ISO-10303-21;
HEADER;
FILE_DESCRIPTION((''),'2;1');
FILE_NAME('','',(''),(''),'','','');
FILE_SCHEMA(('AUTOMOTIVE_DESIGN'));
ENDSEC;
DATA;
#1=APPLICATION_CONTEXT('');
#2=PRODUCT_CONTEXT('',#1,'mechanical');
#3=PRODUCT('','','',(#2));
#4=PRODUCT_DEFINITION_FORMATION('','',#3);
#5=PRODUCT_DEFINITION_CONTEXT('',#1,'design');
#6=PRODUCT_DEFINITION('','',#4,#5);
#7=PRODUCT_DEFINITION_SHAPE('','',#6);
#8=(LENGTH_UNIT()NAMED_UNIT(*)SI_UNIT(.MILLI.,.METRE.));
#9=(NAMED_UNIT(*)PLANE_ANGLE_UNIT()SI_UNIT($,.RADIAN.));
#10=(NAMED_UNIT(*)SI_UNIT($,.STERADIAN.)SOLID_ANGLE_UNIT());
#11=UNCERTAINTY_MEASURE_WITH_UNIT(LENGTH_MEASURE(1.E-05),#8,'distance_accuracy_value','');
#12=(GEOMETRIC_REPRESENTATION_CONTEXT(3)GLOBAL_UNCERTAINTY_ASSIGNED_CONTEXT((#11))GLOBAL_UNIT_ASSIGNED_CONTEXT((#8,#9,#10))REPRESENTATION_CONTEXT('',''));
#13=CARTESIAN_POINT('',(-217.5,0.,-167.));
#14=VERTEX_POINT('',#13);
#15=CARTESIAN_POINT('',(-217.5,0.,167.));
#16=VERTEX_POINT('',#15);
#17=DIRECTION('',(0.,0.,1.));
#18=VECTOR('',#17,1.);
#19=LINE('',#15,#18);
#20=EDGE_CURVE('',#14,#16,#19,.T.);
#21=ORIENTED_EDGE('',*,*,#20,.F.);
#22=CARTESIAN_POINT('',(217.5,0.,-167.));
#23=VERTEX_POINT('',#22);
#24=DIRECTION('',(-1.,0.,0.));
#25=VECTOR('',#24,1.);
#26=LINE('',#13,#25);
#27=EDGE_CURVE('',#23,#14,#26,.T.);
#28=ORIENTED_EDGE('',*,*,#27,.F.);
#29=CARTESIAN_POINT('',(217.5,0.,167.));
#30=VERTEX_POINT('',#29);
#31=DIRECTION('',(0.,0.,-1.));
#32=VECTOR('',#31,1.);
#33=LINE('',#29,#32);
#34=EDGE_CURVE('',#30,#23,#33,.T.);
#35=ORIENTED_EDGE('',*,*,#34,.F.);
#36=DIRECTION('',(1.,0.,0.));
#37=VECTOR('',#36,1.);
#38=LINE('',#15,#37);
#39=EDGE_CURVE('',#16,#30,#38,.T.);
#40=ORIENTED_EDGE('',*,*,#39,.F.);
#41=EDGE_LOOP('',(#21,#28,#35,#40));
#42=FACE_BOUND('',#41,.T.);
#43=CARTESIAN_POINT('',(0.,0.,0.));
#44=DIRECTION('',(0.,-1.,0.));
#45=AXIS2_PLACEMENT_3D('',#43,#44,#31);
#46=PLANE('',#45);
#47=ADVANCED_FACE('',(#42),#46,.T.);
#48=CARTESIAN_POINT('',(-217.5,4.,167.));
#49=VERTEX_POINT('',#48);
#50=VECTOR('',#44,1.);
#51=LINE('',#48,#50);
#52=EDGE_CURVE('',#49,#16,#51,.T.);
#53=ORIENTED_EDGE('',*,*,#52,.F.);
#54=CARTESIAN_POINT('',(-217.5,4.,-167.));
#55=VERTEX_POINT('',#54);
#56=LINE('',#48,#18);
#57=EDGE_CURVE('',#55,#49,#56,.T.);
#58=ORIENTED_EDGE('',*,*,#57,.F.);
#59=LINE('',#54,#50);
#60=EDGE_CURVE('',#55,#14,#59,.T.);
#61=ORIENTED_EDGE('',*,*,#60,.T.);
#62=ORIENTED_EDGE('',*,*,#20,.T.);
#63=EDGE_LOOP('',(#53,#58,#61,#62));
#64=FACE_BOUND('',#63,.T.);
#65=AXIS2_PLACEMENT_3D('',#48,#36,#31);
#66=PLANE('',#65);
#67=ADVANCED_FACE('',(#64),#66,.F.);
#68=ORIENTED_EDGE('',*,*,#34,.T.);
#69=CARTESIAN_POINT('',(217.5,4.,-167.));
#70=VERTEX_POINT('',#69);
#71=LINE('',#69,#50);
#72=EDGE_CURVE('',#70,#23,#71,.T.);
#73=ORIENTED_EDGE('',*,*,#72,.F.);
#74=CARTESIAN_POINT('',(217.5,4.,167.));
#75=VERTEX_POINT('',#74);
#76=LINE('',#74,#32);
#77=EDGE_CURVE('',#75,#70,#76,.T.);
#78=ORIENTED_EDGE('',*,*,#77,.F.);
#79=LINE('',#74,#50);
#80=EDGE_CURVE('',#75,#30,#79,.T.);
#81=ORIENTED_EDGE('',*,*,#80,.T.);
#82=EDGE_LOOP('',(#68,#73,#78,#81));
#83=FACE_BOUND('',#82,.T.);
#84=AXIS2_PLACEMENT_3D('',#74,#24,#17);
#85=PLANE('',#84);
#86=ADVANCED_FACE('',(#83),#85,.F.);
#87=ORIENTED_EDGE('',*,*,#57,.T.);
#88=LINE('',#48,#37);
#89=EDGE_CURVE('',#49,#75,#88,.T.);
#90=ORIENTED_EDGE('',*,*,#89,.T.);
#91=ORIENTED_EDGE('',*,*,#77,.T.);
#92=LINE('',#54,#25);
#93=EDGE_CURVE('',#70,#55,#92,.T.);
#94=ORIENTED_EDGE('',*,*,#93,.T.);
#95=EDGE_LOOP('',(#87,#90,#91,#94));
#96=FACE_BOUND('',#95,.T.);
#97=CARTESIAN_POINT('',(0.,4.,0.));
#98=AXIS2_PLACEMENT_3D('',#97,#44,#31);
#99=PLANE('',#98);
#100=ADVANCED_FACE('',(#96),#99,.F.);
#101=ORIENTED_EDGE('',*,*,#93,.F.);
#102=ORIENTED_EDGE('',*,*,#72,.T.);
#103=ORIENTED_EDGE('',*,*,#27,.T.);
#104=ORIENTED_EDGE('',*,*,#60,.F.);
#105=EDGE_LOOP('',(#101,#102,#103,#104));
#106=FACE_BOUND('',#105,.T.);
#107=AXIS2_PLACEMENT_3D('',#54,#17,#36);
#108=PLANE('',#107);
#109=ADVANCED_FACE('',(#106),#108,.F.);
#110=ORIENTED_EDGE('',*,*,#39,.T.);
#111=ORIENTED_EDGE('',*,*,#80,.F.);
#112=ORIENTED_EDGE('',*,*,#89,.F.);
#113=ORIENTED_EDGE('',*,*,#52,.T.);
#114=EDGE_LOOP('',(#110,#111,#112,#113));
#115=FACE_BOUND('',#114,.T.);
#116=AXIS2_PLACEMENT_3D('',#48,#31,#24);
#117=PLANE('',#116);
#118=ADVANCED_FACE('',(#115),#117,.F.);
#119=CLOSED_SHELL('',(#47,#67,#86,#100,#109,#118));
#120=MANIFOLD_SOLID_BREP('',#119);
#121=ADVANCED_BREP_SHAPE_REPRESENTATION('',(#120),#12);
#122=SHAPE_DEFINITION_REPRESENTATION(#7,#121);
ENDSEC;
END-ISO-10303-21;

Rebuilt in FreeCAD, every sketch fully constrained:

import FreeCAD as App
import Part
import Sketcher

doc = App.newDocument("Part")
params = doc.addObject("Spreadsheet::Sheet", "Params")
for row, (alias, value) in enumerate([
    ("sketch1_width", "435 mm"),
    ("sketch1_height", "334 mm"),
    ("pad1_length", "4 mm"),
], start=1):
    params.set(f"A{row}", alias)
    params.set(f"B{row}", "=" + value)
    params.setAlias(f"B{row}", alias)

body = doc.addObject("PartDesign::Body", "Body")

sketch1 = body.newObject("Sketcher::SketchObject", "Sketch")
sketch1.AttachmentSupport = (doc.getObject("XZ_Plane"), [""])
sketch1.MapMode = "FlatFace"
sketch1.addGeometry([
    Part.LineSegment(App.Vector(-218, -167, 0), App.Vector(-218, 167, 0)),
    Part.LineSegment(App.Vector(-218, 167, 0), App.Vector(218, 167, 0)),
    Part.LineSegment(App.Vector(218, 167, 0), App.Vector(218, -167, 0)),
    Part.LineSegment(App.Vector(218, -167, 0), App.Vector(-218, -167, 0)),
], False)
sketch1.addConstraint([
    Sketcher.Constraint("Coincident", 0, 2, 1, 1),
    Sketcher.Constraint("Coincident", 1, 2, 2, 1),
    Sketcher.Constraint("Coincident", 2, 2, 3, 1),
    Sketcher.Constraint("Coincident", 3, 2, 0, 1),
    Sketcher.Constraint("Vertical", 0),
    Sketcher.Constraint("Horizontal", 1),
    Sketcher.Constraint("Vertical", 2),
    Sketcher.Constraint("Horizontal", 3),
    Sketcher.Constraint("Symmetric", 0, 2, 2, 2, -1, 1),
    Sketcher.Constraint("DistanceX", 1, 1, 1, 2, 435.0),
    Sketcher.Constraint("DistanceY", 0, 1, 0, 2, 334.0),
])
sketch1.setExpression("Constraints[9]", "Params.sketch1_width")
sketch1.setExpression("Constraints[10]", "Params.sketch1_height")
pad1 = body.newObject("PartDesign::Pad", "Pad")
pad1.Profile = sketch1
pad1.setExpression("Length", "Params.pad1_length")
pad1.Reversed = True

doc.recompute()
